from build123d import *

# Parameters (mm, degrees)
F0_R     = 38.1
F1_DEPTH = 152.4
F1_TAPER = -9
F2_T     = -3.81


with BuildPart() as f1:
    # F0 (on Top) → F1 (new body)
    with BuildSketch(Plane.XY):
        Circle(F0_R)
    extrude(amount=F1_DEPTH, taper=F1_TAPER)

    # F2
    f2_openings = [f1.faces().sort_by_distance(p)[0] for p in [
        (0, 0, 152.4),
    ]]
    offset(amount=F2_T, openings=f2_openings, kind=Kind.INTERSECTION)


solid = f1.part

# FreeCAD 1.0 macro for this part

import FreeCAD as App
import Part
import Sketcher
from FreeCAD import Vector
Q = App.Units.Quantity


def faces_at(feature, points):
    """Names of the faces that lie closest to the given points."""
    faces = feature.Shape.Faces
    near = lambda p: min(range(len(faces)), key=lambda i: faces[i].distToShape(Part.Vertex(*p))[0])
    return sorted({f"Face{near(p) + 1}" for p in points})

doc = App.newDocument("Part")
body = doc.addObject("PartDesign::Body", "Body")

sketch1 = doc.addObject("Sketcher::SketchObject", "Sketch")
body.addObject(sketch1)
sketch1.AttachmentSupport = (doc.XY_Plane, [""])
sketch1.MapMode = "FlatFace"
sketch1.addGeometry(Part.Circle(Vector(0, 0, 0), Vector(0, 0, 1), 38), False)
sketch1.addConstraint(Sketcher.Constraint("Coincident", 0, 3, -1, 1))
sketch1.addConstraint(Sketcher.Constraint("Diameter", 0, Q("3 in")))
pad1 = doc.addObject("PartDesign::Pad", "Pad")
body.addObject(pad1)
pad1.Profile = sketch1
pad1.Length = Q("6 in")
pad1.TaperAngle = 9
doc.recompute()

thickness = doc.addObject("PartDesign::Thickness", "Thickness")
body.addObject(thickness)
thickness.Base = (pad1, faces_at(pad1, [(0, 0, 152.4)]))
thickness.Value = Q("0.15 in")
thickness.Reversed = True
thickness.Join = "Intersection"

doc.recompute()
